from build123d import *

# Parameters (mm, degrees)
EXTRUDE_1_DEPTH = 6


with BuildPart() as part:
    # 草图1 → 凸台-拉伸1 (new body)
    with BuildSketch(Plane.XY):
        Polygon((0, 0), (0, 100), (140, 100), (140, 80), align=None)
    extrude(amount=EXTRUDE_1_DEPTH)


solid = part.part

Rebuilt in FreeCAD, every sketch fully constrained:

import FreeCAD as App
import Part
import Sketcher
from FreeCAD import Vector


def add_polygon(sketch, points):
    """Adds a closed chain of lines whose ends are joined by coincident constraints."""
    first, n = sketch.GeometryCount, len(points)
    for a, b in zip(points, points[1:] + points[:1]):
        sketch.addGeometry(Part.LineSegment(App.Vector(*a, 0), App.Vector(*b, 0)), False)
    for i in range(n):
        sketch.addConstraint(Sketcher.Constraint("Coincident", first + i, 2, first + (i + 1) % n, 1))

doc = App.newDocument("Part")
body = doc.addObject("PartDesign::Body", "Body")

# Sketch on XY plane
sketch1 = body.newObject("Sketcher::SketchObject", "Sketch")
sketch1.AttachmentSupport = (doc.getObject("XY_Plane"), [""])
sketch1.MapMode = "FlatFace"
add_polygon(sketch1, [(0, 100), (0, 0), (140, 80), (140, 100)])  # lines 0-3
sketch1.addConstraint(Sketcher.Constraint("Vertical", 0))
sketch1.addConstraint(Sketcher.Constraint("Vertical", 2))
sketch1.addConstraint(Sketcher.Constraint("Horizontal", 3))
sketch1.addConstraint(Sketcher.Constraint("Coincident", 0, 2, -1, 1))
sketch1.addConstraint(Sketcher.Constraint("DistanceX", 3, 2, 3, 1, 140.0))
sketch1.addConstraint(Sketcher.Constraint("DistanceY", 0, 2, 0, 1, 100.0))
sketch1.addConstraint(Sketcher.Constraint("DistanceY", 2, 1, 2, 2, 20.0))
pad1 = body.newObject("PartDesign::Pad", "Pad")
pad1.Profile = sketch1
pad1.Length = 6

doc.recompute()
